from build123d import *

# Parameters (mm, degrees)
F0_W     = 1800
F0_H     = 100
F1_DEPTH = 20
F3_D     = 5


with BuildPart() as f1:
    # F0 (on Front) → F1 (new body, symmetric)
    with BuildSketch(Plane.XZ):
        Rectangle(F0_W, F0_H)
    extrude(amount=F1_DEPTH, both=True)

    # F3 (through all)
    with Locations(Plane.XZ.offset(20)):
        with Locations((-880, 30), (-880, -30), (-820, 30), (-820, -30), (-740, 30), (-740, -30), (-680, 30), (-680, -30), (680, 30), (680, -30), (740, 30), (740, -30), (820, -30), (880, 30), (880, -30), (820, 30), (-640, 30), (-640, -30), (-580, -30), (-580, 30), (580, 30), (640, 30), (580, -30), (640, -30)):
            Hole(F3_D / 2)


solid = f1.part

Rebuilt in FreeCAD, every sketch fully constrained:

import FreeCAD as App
import Part
import Sketcher
Q = App.Units.Quantity


def add_polygon(sketch, points):
    """Adds a closed chain of lines whose ends are joined by coincident constraints."""
    first, n = sketch.GeometryCount, len(points)
    for a, b in zip(points, points[1:] + points[:1]):
        sketch.addGeometry(Part.LineSegment(App.Vector(*a, 0), App.Vector(*b, 0)), False)
    for i in range(n):
        sketch.addConstraint(Sketcher.Constraint("Coincident", first + i, 2, first + (i + 1) % n, 1))

doc = App.newDocument("Part")
body = doc.addObject("PartDesign::Body", "Body")

# Sketch on XZ plane
sketch1 = body.newObject("Sketcher::SketchObject", "Sketch")
sketch1.AttachmentSupport = (doc.getObject("XZ_Plane"), [""])
sketch1.MapMode = "FlatFace"
add_polygon(sketch1, [(-900, 50), (-900, -50), (900, -50), (900, 50)])  # lines 0-3
sketch1.addConstraint([
    Sketcher.Constraint("Vertical", 0),
    Sketcher.Constraint("Horizontal", 1),
    Sketcher.Constraint("Vertical", 2),
    Sketcher.Constraint("Horizontal", 3),
    Sketcher.Constraint("Symmetric", 0, 2, 2, 2, -1, 1),
    Sketcher.Constraint("DistanceX", 1, 1, 1, 2, Q("1800 mm")),
    Sketcher.Constraint("DistanceY", 0, 2, 0, 1, Q("100 mm")),
])
pad1 = body.newObject("PartDesign::Pad", "Pad")
pad1.Profile = sketch1
pad1.Length = 40
pad1.Midplane = True

# Sketch on XZ plane
sketch2 = body.newObject("Sketcher::SketchObject", "Sketch001")
sketch2.AttachmentSupport = (doc.getObject("XZ_Plane"), [""])
sketch2.MapMode = "FlatFace"
sketch2.AttachmentOffset = App.Placement(App.Vector(0, 0, 20), App.Rotation())
sketch2.addGeometry([
    Part.Circle(App.Vector(-880, 30, 0), App.Vector(0, 0, 1), 2.5),  # 0
    Part.Circle(App.Vector(-880, -30, 0), App.Vector(0, 0, 1), 2.5),  # 1
    Part.Circle(App.Vector(-820, 30, 0), App.Vector(0, 0, 1), 2.5),  # 2
    Part.Circle(App.Vector(-820, -30, 0), App.Vector(0, 0, 1), 2.5),  # 3
    Part.Circle(App.Vector(-740, 30, 0), App.Vector(0, 0, 1), 2.5),  # 4
    Part.Circle(App.Vector(-740, -30, 0), App.Vector(0, 0, 1), 2.5),  # 5
    Part.Circle(App.Vector(-680, 30, 0), App.Vector(0, 0, 1), 2.5),  # 6
    Part.Circle(App.Vector(-680, -30, 0), App.Vector(0, 0, 1), 2.5),  # 7
    Part.Circle(App.Vector(680, 30, 0), App.Vector(0, 0, 1), 2.5),  # 8
    Part.Circle(App.Vector(680, -30, 0), App.Vector(0, 0, 1), 2.5),  # 9
    Part.Circle(App.Vector(740, 30, 0), App.Vector(0, 0, 1), 2.5),  # 10
    Part.Circle(App.Vector(740, -30, 0), App.Vector(0, 0, 1), 2.5),  # 11
    Part.Circle(App.Vector(820, -30, 0), App.Vector(0, 0, 1), 2.5),  # 12
    Part.Circle(App.Vector(880, 30, 0), App.Vector(0, 0, 1), 2.5),  # 13
    Part.Circle(App.Vector(880, -30, 0), App.Vector(0, 0, 1), 2.5),  # 14
    Part.Circle(App.Vector(820, 30, 0), App.Vector(0, 0, 1), 2.5),  # 15
    Part.Circle(App.Vector(-640, 30, 0), App.Vector(0, 0, 1), 2.5),  # 16
    Part.Circle(App.Vector(-640, -30, 0), App.Vector(0, 0, 1), 2.5),  # 17
    Part.Circle(App.Vector(-580, -30, 0), App.Vector(0, 0, 1), 2.5),  # 18
    Part.Circle(App.Vector(-580, 30, 0), App.Vector(0, 0, 1), 2.5),  # 19
    Part.Circle(App.Vector(580, 30, 0), App.Vector(0, 0, 1), 2.5),  # 20
    Part.Circle(App.Vector(640, 30, 0), App.Vector(0, 0, 1), 2.5),  # 21
    Part.Circle(App.Vector(580, -30, 0), App.Vector(0, 0, 1), 2.5),  # 22
    Part.Circle(App.Vector(640, -30, 0), App.Vector(0, 0, 1), 2.5),  # 23
], False)
sketch2.addConstraint([
    Sketcher.Constraint("Equal", 0, 1),
    Sketcher.Constraint("Equal", 1, 2),
    Sketcher.Constraint("Equal", 2, 3),
    Sketcher.Constraint("Equal", 3, 4),
    Sketcher.Constraint("Equal", 4, 5),
    Sketcher.Constraint("Equal", 5, 6),
    Sketcher.Constraint("Equal", 6, 7),
    Sketcher.Constraint("Equal", 7, 8),
    Sketcher.Constraint("Equal", 8, 9),
    Sketcher.Constraint("Equal", 9, 10),
    Sketcher.Constraint("Equal", 10, 11),
    Sketcher.Constraint("Equal", 11, 12),
    Sketcher.Constraint("Equal", 12, 13),
    Sketcher.Constraint("Equal", 13, 14),
    Sketcher.Constraint("Equal", 14, 15),
    Sketcher.Constraint("Equal", 15, 16),
    Sketcher.Constraint("Equal", 16, 17),
    Sketcher.Constraint("Equal", 17, 18),
    Sketcher.Constraint("Equal", 18, 19),
    Sketcher.Constraint("Equal", 19, 20),
    Sketcher.Constraint("Equal", 20, 21),
    Sketcher.Constraint("Equal", 21, 22),
    Sketcher.Constraint("Equal", 22, 23),
    Sketcher.Constraint("Symmetric", 7, 3, 8, 3, -1, 1),
    Sketcher.Constraint("Symmetric", 6, 3, 9, 3, -1, 1),
    Sketcher.Constraint("Symmetric", 5, 3, 10, 3, -1, 1),
    Sketcher.Constraint("Symmetric", 4, 3, 11, 3, -1, 1),
    Sketcher.Constraint("Symmetric", 2, 3, 12, 3, -1, 1),
    Sketcher.Constraint("Symmetric", 1, 3, 13, 3, -1, 1),
    Sketcher.Constraint("Symmetric", 0, 3, 14, 3, -1, 1),
    Sketcher.Constraint("Symmetric", 3, 3, 15, 3, -1, 1),
    Sketcher.Constraint("Symmetric", 18, 3, 20, 3, -1, 1),
    Sketcher.Constraint("Symmetric", 17, 3, 21, 3, -1, 1),
    Sketcher.Constraint("Symmetric", 19, 3, 22, 3, -1, 1),
    Sketcher.Constraint("Symmetric", 16, 3, 23, 3, -1, 1),
    Sketcher.Constraint("Symmetric", 6, 3, 8, 3, -2),
    Sketcher.Constraint("Symmetric", 4, 3, 10, 3, -2),
    Sketcher.Constraint("Symmetric", 3, 3, 12, 3, -2),
    Sketcher.Constraint("Symmetric", 0, 3, 13, 3, -2),
    Sketcher.Constraint("Symmetric", 19, 3, 20, 3, -2),
    Sketcher.Constraint("Symmetric", 16, 3, 21, 3, -2),
    Sketcher.Constraint("Horizontal", 0, 3, 2, 3),
    Sketcher.Constraint("Horizontal", 2, 3, 4, 3),
    Sketcher.Constraint("Horizontal", 4, 3, 6, 3),
    Sketcher.Constraint("Horizontal", 15, 3, 16, 3),
    Sketcher.Constraint("Horizontal", 17, 3, 18, 3),
    Sketcher.Constraint("Diameter", 0, Q("5 mm")),
    Sketcher.Constraint("DistanceX", 0, 3, -1, 1, Q("880 mm")),
    Sketcher.Constraint("DistanceY", -1, 1, 0, 3, Q("30 mm")),
    Sketcher.Constraint("DistanceX", 2, 3, -1, 1, Q("820 mm")),
    Sketcher.Constraint("DistanceX", 4, 3, -1, 1, Q("740 mm")),
    Sketcher.Constraint("DistanceX", 6, 3, -1, 1, Q("680 mm")),
    Sketcher.Constraint("DistanceX", 16, 3, -1, 1, Q("640 mm")),
    Sketcher.Constraint("DistanceX", 18, 3, -1, 1, Q("580 mm")),
])
doc.recompute()
hole = body.newObject("PartDesign::Hole", "Hole")
hole.Profile = sketch2
hole.ThreadType = "None"
hole.Diameter = 5
hole.DepthType = "ThroughAll"

doc.recompute()
